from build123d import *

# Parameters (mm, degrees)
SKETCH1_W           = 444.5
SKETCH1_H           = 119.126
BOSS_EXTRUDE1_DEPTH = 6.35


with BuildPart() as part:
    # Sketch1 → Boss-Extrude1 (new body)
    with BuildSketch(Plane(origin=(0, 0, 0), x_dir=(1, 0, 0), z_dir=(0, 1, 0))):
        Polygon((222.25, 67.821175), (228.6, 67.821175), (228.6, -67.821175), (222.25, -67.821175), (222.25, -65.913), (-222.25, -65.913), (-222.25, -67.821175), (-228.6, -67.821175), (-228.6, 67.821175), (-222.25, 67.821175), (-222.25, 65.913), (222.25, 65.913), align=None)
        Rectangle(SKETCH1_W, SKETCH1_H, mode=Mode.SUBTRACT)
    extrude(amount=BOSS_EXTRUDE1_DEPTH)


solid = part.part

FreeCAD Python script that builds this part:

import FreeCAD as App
import Part
import Sketcher
Q = App.Units.Quantity


def add_polygon(sketch, points):
    """Adds a closed chain of lines whose ends are joined by coincident constraints."""
    first, n = sketch.GeometryCount, len(points)
    for a, b in zip(points, points[1:] + points[:1]):
        sketch.addGeometry(Part.LineSegment(App.Vector(*a, 0), App.Vector(*b, 0)), False)
    for i in range(n):
        sketch.addConstraint(Sketcher.Constraint("Coincident", first + i, 2, first + (i + 1) % n, 1))

doc = App.newDocument("Part")
body = doc.addObject("PartDesign::Body", "Body")

# Sketch on XZ plane
sketch1 = body.newObject("Sketcher::SketchObject", "Sketch")
sketch1.AttachmentSupport = (doc.getObject("XZ_Plane"), [""])
sketch1.MapMode = "FlatFace"
add_polygon(sketch1, [(228.6, -67.8), (222.2, -67.8), (222.2, -65.9), (-222.2, -65.9), (-222.2, -67.8), (-228.6, -67.8), (-228.6, 67.8), (-222.2, 67.8), (-222.2, 65.9), (222.2, 65.9), (222.2, 67.8), (228.6, 67.8)])  # lines 0-11
add_polygon(sketch1, [(-222.2, 59.6), (-222.2, -59.6), (222.2, -59.6), (222.2, 59.6)])  # lines 12-15
sketch1.addConstraint(Sketcher.Constraint("Horizontal", 0))
sketch1.addConstraint(Sketcher.Constraint("Vertical", 1))
sketch1.addConstraint(Sketcher.Constraint("Horizontal", 2))
sketch1.addConstraint(Sketcher.Constraint("Vertical", 3))
sketch1.addConstraint(Sketcher.Constraint("Horizontal", 4))
sketch1.addConstraint(Sketcher.Constraint("Vertical", 5))
sketch1.addConstraint(Sketcher.Constraint("Horizontal", 6))
sketch1.addConstraint(Sketcher.Constraint("Vertical", 7))
sketch1.addConstraint(Sketcher.Constraint("Horizontal", 8))
sketch1.addConstraint(Sketcher.Constraint("Vertical", 9))
sketch1.addConstraint(Sketcher.Constraint("Horizontal", 10))
sketch1.addConstraint(Sketcher.Constraint("Vertical", 11))
sketch1.addConstraint(Sketcher.Constraint("Vertical", 12))
sketch1.addConstraint(Sketcher.Constraint("Horizontal", 13))
sketch1.addConstraint(Sketcher.Constraint("Vertical", 14))
sketch1.addConstraint(Sketcher.Constraint("Horizontal", 15))
sketch1.addConstraint(Sketcher.Constraint("Symmetric", 0, 2, 6, 2, -1, 1))
sketch1.addConstraint(Sketcher.Constraint("Symmetric", 2, 2, 8, 2, -1, 1))
sketch1.addConstraint(Sketcher.Constraint("Symmetric", 4, 2, 10, 2, -1, 1))
sketch1.addConstraint(Sketcher.Constraint("Symmetric", 12, 2, 14, 2, -1, 1))
sketch1.addConstraint(Sketcher.Constraint("Symmetric", 0, 2, 3, 2, -2))
sketch1.addConstraint(Sketcher.Constraint("Vertical", 7, 2, 12, 2))
sketch1.addConstraint(Sketcher.Constraint("DistanceX", 2, 2, 2, 1, Q("17.5 in")))
sketch1.addConstraint(Sketcher.Constraint("DistanceX", 4, 2, -1, 1, Q("9 in")))
sketch1.addConstraint(Sketcher.Constraint("DistanceY", 12, 2, 12, 1, Q("4.69 in")))
sketch1.addConstraint(Sketcher.Constraint("DistanceY", 2, 2, 7, 2, Q("5.19 in")))
sketch1.addConstraint(Sketcher.Constraint("DistanceY", 5, 1, 5, 2, 135.64235))
pad1 = body.newObject("PartDesign::Pad", "Pad")
pad1.Profile = sketch1
pad1.Length = Q("0.25 in")
pad1.Reversed = True

doc.recompute()
